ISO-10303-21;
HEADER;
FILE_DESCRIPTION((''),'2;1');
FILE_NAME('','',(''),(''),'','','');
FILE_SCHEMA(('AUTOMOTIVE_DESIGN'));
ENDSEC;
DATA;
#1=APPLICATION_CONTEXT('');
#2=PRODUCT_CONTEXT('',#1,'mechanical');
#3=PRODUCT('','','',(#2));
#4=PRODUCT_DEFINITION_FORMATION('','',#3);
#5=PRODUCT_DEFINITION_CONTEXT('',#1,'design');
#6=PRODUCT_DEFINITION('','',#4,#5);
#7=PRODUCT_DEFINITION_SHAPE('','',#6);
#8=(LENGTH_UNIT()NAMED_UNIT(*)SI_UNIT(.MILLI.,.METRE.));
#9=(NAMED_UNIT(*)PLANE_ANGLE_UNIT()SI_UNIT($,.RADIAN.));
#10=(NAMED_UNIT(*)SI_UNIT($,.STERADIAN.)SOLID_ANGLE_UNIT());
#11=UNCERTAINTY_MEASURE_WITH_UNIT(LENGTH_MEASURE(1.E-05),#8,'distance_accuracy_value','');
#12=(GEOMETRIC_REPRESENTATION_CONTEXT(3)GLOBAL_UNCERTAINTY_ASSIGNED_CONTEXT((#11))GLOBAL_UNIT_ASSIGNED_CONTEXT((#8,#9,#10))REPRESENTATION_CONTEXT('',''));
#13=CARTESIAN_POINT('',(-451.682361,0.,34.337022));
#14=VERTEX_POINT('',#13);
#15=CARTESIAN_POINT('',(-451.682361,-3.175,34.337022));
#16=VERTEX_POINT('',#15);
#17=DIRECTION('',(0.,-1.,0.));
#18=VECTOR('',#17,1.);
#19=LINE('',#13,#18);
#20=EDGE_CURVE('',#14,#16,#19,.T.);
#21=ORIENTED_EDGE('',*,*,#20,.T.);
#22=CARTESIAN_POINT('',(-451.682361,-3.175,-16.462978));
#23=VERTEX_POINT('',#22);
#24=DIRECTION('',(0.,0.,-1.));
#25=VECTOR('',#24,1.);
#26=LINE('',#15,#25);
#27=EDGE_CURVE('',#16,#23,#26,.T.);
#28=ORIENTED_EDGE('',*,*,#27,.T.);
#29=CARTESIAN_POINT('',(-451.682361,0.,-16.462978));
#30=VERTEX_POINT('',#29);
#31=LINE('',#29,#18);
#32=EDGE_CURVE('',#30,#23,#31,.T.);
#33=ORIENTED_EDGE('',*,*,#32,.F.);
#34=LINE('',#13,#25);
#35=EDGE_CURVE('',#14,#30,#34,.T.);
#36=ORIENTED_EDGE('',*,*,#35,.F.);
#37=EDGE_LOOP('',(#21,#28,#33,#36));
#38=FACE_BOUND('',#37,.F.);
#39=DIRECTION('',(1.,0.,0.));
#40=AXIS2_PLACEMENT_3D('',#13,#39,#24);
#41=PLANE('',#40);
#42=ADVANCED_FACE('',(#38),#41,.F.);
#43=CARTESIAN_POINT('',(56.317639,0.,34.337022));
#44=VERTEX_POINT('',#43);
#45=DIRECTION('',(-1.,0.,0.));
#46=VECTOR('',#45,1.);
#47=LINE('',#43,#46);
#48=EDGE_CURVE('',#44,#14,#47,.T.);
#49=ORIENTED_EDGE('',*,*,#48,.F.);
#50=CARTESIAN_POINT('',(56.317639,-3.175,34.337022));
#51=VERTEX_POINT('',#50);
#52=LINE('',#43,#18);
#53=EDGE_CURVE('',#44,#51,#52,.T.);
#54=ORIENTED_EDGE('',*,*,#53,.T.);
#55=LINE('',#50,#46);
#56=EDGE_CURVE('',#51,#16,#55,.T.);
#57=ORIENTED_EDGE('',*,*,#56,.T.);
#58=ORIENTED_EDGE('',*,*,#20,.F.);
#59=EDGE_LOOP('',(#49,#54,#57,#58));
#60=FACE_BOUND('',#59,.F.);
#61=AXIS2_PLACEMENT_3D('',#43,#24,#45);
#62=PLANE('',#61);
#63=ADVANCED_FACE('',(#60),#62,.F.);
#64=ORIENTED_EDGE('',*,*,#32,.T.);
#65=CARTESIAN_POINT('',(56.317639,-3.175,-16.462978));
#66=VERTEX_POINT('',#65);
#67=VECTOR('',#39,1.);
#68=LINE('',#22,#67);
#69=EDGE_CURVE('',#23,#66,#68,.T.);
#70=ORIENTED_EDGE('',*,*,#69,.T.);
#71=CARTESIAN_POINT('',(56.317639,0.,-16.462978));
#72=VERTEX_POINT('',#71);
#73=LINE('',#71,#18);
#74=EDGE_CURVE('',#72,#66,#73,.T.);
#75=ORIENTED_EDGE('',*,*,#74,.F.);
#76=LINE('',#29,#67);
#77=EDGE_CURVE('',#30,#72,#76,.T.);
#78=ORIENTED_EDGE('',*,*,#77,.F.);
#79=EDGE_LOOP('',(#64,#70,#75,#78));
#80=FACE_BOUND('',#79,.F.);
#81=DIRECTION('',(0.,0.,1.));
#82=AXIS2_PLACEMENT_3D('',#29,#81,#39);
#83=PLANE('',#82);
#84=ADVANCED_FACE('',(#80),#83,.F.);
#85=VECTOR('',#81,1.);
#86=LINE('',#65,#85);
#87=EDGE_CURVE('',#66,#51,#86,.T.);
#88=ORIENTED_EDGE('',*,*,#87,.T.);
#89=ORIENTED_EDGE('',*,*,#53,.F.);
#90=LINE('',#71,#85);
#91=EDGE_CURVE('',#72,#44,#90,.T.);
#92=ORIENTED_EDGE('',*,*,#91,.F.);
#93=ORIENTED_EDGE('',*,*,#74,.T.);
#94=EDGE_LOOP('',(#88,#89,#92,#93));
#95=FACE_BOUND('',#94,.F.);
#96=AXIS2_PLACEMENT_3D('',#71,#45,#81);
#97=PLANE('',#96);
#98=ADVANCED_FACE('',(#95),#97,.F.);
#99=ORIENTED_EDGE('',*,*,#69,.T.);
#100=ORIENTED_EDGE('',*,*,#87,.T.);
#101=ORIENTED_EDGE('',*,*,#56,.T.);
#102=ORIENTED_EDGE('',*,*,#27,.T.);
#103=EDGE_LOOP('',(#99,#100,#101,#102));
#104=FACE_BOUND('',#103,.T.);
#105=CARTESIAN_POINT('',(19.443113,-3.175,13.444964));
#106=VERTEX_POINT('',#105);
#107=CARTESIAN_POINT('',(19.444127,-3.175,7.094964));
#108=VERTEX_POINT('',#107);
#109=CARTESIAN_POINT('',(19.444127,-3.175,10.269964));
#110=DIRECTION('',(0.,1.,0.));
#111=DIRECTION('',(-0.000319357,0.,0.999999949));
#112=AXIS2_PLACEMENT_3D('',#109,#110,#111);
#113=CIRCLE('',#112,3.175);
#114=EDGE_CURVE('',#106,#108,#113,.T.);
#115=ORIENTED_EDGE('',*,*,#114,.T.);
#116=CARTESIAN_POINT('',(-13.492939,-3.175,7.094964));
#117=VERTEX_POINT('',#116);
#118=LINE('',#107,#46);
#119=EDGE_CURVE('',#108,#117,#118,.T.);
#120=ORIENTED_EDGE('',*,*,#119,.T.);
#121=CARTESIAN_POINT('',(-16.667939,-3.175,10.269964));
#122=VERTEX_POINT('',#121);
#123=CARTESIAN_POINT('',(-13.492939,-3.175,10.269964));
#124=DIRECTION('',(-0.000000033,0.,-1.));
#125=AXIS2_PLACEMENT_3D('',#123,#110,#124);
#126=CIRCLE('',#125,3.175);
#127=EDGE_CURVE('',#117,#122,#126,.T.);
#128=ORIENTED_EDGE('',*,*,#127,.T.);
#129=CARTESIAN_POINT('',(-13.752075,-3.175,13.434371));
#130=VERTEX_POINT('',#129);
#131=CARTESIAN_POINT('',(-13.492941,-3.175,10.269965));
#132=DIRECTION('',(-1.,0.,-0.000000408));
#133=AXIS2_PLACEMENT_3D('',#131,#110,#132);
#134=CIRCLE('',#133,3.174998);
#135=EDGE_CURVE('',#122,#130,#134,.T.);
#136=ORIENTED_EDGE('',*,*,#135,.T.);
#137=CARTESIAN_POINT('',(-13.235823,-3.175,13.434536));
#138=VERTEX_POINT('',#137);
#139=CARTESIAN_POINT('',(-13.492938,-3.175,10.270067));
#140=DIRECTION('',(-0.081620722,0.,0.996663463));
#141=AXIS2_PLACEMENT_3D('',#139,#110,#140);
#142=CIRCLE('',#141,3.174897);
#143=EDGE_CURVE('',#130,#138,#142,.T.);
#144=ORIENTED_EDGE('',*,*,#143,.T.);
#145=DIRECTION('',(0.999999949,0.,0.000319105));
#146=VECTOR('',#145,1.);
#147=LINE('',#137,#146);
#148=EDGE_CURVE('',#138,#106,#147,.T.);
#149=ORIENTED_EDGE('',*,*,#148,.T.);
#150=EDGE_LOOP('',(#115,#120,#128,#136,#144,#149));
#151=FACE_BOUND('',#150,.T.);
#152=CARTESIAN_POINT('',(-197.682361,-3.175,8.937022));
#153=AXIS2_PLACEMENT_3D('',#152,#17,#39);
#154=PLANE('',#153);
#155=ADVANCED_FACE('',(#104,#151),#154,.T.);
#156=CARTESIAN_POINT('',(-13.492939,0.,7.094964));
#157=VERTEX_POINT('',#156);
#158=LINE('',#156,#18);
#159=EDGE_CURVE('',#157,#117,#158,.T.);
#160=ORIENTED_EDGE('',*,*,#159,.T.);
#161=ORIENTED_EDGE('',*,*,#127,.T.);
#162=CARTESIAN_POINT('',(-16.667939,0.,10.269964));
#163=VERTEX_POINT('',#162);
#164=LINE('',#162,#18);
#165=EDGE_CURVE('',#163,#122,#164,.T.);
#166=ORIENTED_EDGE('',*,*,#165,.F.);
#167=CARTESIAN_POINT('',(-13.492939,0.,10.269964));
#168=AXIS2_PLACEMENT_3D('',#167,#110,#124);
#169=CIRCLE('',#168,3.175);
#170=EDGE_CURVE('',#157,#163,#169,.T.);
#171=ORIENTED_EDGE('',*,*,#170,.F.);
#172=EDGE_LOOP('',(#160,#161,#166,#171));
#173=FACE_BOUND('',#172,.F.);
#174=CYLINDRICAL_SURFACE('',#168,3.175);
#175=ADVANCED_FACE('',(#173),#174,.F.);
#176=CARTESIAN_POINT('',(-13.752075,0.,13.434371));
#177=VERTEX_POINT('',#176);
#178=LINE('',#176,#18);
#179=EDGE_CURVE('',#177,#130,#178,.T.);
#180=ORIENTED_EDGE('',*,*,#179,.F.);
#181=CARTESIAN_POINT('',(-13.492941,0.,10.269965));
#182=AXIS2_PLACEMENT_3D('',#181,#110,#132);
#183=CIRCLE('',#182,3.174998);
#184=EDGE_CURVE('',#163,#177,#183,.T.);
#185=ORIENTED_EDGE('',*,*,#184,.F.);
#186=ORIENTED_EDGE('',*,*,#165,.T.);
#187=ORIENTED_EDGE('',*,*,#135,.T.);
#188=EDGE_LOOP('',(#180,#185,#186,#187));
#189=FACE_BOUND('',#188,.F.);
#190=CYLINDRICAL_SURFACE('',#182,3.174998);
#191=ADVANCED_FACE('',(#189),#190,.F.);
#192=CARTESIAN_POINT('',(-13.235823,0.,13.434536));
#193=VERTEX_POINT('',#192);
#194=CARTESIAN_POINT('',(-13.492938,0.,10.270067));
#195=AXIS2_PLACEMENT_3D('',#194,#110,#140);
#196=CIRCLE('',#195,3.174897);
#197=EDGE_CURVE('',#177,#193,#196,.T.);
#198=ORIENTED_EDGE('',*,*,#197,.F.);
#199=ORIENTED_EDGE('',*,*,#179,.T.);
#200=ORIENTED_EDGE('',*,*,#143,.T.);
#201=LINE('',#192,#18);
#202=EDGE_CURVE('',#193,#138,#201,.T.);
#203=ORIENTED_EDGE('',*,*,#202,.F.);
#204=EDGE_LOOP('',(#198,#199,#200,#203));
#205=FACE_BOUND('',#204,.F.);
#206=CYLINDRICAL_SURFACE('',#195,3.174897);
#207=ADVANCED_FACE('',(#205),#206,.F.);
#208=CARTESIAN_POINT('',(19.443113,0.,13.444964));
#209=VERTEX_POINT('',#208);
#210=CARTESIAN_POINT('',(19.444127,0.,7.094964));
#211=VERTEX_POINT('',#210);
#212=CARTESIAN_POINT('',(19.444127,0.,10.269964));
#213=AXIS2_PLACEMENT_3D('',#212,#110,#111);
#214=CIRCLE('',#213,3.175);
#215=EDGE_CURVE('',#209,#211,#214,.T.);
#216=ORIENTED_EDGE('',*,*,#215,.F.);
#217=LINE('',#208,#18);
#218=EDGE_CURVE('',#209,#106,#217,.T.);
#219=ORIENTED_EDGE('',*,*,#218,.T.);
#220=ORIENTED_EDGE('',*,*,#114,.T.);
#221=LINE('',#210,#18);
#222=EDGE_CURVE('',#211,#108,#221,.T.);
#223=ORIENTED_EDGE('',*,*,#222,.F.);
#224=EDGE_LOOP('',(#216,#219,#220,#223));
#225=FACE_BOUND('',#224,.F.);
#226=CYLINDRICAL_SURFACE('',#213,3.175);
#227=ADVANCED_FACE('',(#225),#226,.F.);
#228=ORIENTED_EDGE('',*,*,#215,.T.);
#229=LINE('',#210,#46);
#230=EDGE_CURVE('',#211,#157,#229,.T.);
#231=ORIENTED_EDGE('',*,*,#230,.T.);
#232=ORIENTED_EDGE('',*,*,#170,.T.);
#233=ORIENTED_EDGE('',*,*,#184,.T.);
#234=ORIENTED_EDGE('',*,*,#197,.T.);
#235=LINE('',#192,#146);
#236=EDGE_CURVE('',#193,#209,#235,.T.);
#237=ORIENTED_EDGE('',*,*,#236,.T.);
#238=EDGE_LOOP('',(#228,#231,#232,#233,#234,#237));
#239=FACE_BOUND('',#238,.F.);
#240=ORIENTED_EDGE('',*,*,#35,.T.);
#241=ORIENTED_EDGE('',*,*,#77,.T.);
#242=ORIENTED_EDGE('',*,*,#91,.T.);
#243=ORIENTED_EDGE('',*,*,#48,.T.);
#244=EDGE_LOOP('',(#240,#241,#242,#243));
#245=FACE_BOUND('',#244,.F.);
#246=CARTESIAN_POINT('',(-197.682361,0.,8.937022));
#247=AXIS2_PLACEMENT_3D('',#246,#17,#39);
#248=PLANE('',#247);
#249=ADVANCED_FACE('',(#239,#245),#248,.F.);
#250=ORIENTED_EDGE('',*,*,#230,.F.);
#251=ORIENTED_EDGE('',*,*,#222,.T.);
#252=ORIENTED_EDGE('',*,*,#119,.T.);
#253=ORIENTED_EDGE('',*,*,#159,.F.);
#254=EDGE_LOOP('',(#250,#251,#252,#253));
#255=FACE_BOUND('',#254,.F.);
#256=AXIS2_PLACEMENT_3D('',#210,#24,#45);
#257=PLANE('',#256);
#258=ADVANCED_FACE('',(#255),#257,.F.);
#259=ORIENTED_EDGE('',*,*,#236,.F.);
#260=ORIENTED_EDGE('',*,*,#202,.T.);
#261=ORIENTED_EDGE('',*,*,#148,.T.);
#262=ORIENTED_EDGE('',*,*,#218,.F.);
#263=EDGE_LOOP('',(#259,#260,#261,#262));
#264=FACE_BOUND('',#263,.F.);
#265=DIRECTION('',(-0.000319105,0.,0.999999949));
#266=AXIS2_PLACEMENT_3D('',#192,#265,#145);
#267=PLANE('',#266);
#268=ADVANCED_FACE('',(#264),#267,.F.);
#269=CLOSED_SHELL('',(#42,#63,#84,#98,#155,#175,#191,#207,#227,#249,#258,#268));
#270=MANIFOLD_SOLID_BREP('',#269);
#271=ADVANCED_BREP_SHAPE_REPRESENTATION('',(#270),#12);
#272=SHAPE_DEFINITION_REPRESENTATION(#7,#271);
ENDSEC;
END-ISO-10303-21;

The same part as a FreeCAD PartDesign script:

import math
import FreeCAD as App
import Part
import Sketcher

V = App.Vector
Q = App.Units.Quantity


def add_polygon(sketch, points):
    """Adds a closed chain of lines whose ends are joined by coincident constraints."""
    first, n = sketch.GeometryCount, len(points)
    for a, b in zip(points, points[1:] + points[:1]):
        sketch.addGeometry(Part.LineSegment(App.Vector(*a, 0), App.Vector(*b, 0)), False)
    for i in range(n):
        sketch.addConstraint(Sketcher.Constraint("Coincident", first + i, 2, first + (i + 1) % n, 1))

doc = App.newDocument("Part")
params = doc.addObject("Spreadsheet::Sheet", "Params")
for row, (alias, value) in enumerate([
    ("sketch1_width", "20 in"),
    ("sketch1_height", "2 in"),
    ("sketch1_radius", "0.125 in"),
    ("pad1_length", "0.125 in"),
], start=1):
    params.set(f"A{row}", alias)
    params.set(f"B{row}", "=" + value)
    params.setAlias(f"B{row}", alias)

body = doc.addObject("PartDesign::Body", "Body")

# Sketch on XZ plane
sketch1 = body.newObject("Sketcher::SketchObject", "Sketch")
sketch1.AttachmentSupport = (doc.getObject("XZ_Plane"), [""])
sketch1.MapMode = "FlatFace"
add_polygon(sketch1, [(56.3, 34.3), (-451.7, 34.3), (-451.7, -16.5), (56.3, -16.5)])  # lines 0-3
sketch1.addGeometry(Part.LineSegment(V(19.4, 7.1, 0), V(-13.5, 7.1, 0)), False)  # 4
sketch1.addGeometry(Part.ArcOfCircle(Part.Circle(V(-13.5, 10.3, 0), V(0, 0, 1), 3.2), math.radians(-180), math.radians(-90)), False)  # 5
sketch1.addGeometry(Part.ArcOfCircle(Part.Circle(V(-13.5, 10.3, 0), V(0, 0, 1), 3.2), math.radians(95), math.radians(180)), False)  # 6
sketch1.addGeometry(Part.ArcOfCircle(Part.Circle(V(-13.5, 10.3, 0), V(0, 0, 1), 3.2), math.radians(85.35), math.radians(94.68)), False)  # 7
sketch1.addGeometry(Part.LineSegment(V(-13.2, 13.4, 0), V(19.4, 13.4, 0)), False)  # 8
sketch1.addGeometry(Part.ArcOfCircle(Part.Circle(V(19.4, 10.3, 0), V(0, 0, 1), 3.2), math.radians(-90), math.radians(90)), False)  # 9
sketch1.addConstraint(Sketcher.Constraint("Tangent", 4, 2, 5, 2))
sketch1.addConstraint(Sketcher.Constraint("Tangent", 5, 1, 6, 2))
sketch1.addConstraint(Sketcher.Constraint("Coincident", 6, 1, 7, 2))
sketch1.addConstraint(Sketcher.Constraint("Coincident", 7, 1, 8, 1))
sketch1.addConstraint(Sketcher.Constraint("Tangent", 8, 2, 9, 2))
sketch1.addConstraint(Sketcher.Constraint("Tangent", 9, 1, 4, 1))
sketch1.addConstraint(Sketcher.Constraint("Horizontal", 0))
sketch1.addConstraint(Sketcher.Constraint("Vertical", 1))
sketch1.addConstraint(Sketcher.Constraint("Horizontal", 2))
sketch1.addConstraint(Sketcher.Constraint("Vertical", 3))
sketch1.addConstraint(Sketcher.Constraint("Horizontal", 4))
sketch1.addConstraint(Sketcher.Constraint("Equal", 5, 6))
sketch1.addConstraint(Sketcher.Constraint("Equal", 6, 9))
sketch1.addConstraint(Sketcher.Constraint("Horizontal", 9, 3, 5, 1))
sketch1.addConstraint(Sketcher.Constraint("Vertical", 5, 3, 7, 3))
sketch1.addConstraint(Sketcher.Constraint("DistanceX", 0, 2, 0, 1, Q("20 in")))
sketch1.addConstraint(Sketcher.Constraint("DistanceY", 1, 2, 1, 1, Q("2 in")))
sketch1.addConstraint(Sketcher.Constraint("Radius", 5, Q("0.125 in")))
sketch1.addConstraint(Sketcher.Constraint("Radius", 7, 3.174897))
sketch1.addConstraint(Sketcher.Constraint("DistanceX", 4, 2, 4, 1, 32.937066))
sketch1.addConstraint(Sketcher.Constraint("DistanceX", 5, 3, -1, 1, 13.492939))
sketch1.addConstraint(Sketcher.Constraint("DistanceX", 0, 2, -1, 1, 451.682361))
sketch1.addConstraint(Sketcher.Constraint("DistanceY", -1, 1, 0, 2, 34.337022))
sketch1.addConstraint(Sketcher.Constraint("DistanceY", -1, 1, 6, 1, 13.434371))
sketch1.addConstraint(Sketcher.Constraint("DistanceY", 7, 3, 7, 1, 3.164469))
sketch1.addConstraint(Sketcher.Constraint("DistanceY", -1, 1, 5, 3, 10.269964))
sketch1.setExpression("Constraints[19]", "Params.sketch1_width")
sketch1.setExpression("Constraints[20]", "Params.sketch1_height")
sketch1.setExpression("Constraints[21]", "Params.sketch1_radius")
pad1 = body.newObject("PartDesign::Pad", "Pad")
pad1.Profile = sketch1
pad1.setExpression("Length", "Params.pad1_length")

doc.recompute()
